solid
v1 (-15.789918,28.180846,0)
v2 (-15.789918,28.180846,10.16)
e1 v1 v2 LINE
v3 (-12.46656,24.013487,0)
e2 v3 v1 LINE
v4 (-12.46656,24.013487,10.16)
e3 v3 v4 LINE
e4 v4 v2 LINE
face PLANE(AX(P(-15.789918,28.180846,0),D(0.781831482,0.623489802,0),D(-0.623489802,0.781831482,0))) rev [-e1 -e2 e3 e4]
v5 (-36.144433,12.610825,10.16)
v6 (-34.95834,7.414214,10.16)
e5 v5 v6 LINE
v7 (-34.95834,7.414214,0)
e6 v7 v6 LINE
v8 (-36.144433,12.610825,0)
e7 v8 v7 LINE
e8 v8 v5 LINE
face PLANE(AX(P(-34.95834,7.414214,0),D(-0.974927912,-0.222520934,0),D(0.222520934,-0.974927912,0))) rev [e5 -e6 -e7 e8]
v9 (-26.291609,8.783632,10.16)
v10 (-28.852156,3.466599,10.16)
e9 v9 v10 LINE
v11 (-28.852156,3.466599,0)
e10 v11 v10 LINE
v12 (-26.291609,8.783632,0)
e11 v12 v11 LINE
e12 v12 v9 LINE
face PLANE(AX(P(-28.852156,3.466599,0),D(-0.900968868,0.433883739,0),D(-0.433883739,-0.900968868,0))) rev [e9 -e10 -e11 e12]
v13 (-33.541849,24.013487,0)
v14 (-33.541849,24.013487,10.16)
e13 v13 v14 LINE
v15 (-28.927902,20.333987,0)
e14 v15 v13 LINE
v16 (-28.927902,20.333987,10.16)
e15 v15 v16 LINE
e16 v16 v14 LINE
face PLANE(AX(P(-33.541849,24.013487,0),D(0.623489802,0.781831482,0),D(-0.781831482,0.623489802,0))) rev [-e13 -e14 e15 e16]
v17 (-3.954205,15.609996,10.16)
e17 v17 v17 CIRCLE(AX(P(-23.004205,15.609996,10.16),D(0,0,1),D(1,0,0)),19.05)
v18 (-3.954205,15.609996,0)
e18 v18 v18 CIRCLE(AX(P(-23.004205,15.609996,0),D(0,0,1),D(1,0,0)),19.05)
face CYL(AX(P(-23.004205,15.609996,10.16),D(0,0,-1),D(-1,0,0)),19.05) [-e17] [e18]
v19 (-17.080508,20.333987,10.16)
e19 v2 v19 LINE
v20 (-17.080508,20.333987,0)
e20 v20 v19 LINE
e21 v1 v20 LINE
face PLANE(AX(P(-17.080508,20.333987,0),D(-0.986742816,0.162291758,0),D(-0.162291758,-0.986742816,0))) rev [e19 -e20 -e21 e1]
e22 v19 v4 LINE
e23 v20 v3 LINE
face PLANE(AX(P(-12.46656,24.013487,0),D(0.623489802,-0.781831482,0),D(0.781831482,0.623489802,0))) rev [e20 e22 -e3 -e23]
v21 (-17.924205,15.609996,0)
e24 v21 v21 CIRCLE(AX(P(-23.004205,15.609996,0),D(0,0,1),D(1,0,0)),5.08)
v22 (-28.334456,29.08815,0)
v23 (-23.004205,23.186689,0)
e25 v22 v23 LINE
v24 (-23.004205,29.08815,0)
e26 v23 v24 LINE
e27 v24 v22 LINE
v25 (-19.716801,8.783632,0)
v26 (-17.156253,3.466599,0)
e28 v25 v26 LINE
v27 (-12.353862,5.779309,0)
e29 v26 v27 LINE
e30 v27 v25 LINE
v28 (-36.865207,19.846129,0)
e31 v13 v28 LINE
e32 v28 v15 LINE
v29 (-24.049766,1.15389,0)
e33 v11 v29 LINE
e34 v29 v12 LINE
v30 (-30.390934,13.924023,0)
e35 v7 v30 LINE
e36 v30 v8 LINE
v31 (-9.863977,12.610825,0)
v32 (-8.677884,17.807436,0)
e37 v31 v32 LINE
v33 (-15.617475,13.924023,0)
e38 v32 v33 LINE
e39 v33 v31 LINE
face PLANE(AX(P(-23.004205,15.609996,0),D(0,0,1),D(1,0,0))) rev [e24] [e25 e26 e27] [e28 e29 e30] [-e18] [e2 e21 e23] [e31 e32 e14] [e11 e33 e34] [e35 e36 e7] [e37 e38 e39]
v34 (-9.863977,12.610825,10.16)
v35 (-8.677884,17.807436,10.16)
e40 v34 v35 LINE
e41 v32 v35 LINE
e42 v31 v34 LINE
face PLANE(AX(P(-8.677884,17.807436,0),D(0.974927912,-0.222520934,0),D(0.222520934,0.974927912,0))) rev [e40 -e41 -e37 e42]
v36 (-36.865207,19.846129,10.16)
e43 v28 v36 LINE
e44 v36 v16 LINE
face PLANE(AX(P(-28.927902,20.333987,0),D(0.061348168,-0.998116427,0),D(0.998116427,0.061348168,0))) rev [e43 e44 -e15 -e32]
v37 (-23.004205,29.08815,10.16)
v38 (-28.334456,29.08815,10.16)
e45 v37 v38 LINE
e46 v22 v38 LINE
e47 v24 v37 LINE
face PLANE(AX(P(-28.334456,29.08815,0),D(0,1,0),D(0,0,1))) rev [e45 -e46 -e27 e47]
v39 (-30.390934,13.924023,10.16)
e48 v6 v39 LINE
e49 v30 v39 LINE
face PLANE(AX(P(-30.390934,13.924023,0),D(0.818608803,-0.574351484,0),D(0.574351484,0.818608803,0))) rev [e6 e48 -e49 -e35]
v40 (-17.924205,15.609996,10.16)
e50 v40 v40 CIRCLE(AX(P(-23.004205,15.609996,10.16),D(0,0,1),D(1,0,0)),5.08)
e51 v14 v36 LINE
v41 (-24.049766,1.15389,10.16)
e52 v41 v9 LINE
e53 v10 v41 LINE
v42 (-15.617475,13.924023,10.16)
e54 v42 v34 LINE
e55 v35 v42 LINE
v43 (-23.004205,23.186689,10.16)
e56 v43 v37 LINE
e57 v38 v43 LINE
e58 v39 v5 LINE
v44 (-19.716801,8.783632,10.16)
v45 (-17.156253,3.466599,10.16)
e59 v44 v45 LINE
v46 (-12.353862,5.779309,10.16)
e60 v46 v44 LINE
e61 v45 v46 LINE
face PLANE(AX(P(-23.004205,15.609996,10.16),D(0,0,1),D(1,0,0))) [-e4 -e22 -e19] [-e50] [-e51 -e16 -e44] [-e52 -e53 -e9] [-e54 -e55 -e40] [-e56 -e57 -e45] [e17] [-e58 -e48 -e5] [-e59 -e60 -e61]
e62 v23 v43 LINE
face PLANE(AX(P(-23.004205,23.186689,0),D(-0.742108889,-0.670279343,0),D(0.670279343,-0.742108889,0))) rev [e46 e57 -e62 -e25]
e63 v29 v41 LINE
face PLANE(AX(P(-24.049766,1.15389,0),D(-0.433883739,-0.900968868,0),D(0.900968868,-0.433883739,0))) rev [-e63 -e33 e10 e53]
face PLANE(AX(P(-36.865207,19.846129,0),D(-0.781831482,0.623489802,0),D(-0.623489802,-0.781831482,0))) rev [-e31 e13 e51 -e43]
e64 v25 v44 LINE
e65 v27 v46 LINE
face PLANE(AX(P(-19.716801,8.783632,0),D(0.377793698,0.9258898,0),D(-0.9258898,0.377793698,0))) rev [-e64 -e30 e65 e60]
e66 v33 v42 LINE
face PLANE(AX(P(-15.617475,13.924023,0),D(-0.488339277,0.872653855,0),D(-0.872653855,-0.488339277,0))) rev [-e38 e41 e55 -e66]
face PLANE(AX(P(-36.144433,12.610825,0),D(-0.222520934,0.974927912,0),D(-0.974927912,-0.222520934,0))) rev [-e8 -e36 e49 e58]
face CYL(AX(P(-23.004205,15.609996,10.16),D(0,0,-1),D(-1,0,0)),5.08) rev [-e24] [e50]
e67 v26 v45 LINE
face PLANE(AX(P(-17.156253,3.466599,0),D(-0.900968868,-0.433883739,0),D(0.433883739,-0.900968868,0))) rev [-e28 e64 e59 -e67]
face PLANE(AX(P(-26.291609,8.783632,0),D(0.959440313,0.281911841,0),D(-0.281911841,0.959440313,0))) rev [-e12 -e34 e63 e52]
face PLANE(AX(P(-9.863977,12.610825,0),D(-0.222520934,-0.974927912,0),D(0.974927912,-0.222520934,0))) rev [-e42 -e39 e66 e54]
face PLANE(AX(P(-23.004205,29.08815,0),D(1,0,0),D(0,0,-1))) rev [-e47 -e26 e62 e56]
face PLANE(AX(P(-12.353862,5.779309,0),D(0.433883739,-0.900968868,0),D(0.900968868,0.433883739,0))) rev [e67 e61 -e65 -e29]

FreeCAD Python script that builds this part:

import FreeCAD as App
import Part
import Sketcher

V = App.Vector
Q = App.Units.Quantity


def add_polygon(sketch, points):
    """Adds a closed chain of lines whose ends are joined by coincident constraints."""
    first, n = sketch.GeometryCount, len(points)
    for a, b in zip(points, points[1:] + points[:1]):
        sketch.addGeometry(Part.LineSegment(App.Vector(*a, 0), App.Vector(*b, 0)), False)
    for i in range(n):
        sketch.addConstraint(Sketcher.Constraint("Coincident", first + i, 2, first + (i + 1) % n, 1))

doc = App.newDocument("Part")
params = doc.addObject("Spreadsheet::Sheet", "Params")
for row, (alias, value) in enumerate([
    ("sketch1_diameter", "1.5 in"),
    ("sketch1_diameter2", "0.4 in"),
    ("pad1_length", "0.4 in"),
    ("pocket1_length", "0.4 in"),
], start=1):
    params.set(f"A{row}", alias)
    params.set(f"B{row}", "=" + value)
    params.setAlias(f"B{row}", alias)

body = doc.addObject("PartDesign::Body", "Body")

# Sketch on XY plane
sketch1 = body.newObject("Sketcher::SketchObject", "Sketch")
sketch1.AttachmentSupport = (doc.getObject("XY_Plane"), [""])
sketch1.MapMode = "FlatFace"
sketch1.addGeometry(Part.Circle(V(-23, 16, 0), V(0, 0, 1), 19), False)
sketch1.addGeometry(Part.Circle(V(-23, 16, 0), V(0, 0, 1), 5), False)
sketch1.addConstraint(Sketcher.Constraint("Coincident", 1, 3, 0, 3))
sketch1.addConstraint(Sketcher.Constraint("Diameter", 0, Q("1.5 in")))
sketch1.addConstraint(Sketcher.Constraint("Diameter", 1, Q("0.4 in")))
sketch1.addConstraint(Sketcher.Constraint("DistanceX", 0, 3, -1, 1, 23.004205))
sketch1.addConstraint(Sketcher.Constraint("DistanceY", -1, 1, 0, 3, 15.609996))
sketch1.setExpression("Constraints[1]", "Params.sketch1_diameter")
sketch1.setExpression("Constraints[2]", "Params.sketch1_diameter2")
pad1 = body.newObject("PartDesign::Pad", "Pad")
pad1.Profile = sketch1
pad1.setExpression("Length", "Params.pad1_length")

# Sketch on XY plane
sketch2 = body.newObject("Sketcher::SketchObject", "Sketch001")
sketch2.AttachmentSupport = (doc.getObject("XY_Plane"), [""])
sketch2.MapMode = "FlatFace"
sketch2.AttachmentOffset = App.Placement(V(0, 0, 0.4 * 25.4), App.Rotation())
add_polygon(sketch2, [(-28, 29), (-23, 23), (-23, 29)])  # lines 0-2
add_polygon(sketch2, [(-17, 20), (-12, 24), (-16, 28)])  # lines 3-5
add_polygon(sketch2, [(-16, 14), (-10, 13), (-9, 18)])  # lines 6-8
add_polygon(sketch2, [(-20, 9), (-17, 3), (-12, 6)])  # lines 9-11
add_polygon(sketch2, [(-26, 9), (-29, 3), (-24, 1)])  # lines 12-14
add_polygon(sketch2, [(-30, 14), (-36, 13), (-35, 7)])  # lines 15-17
add_polygon(sketch2, [(-29, 20), (-34, 24), (-37, 20)])  # lines 18-20
sketch2.addConstraint(Sketcher.Constraint("Vertical", 1))
sketch2.addConstraint(Sketcher.Constraint("Horizontal", 2))
sketch2.addConstraint(Sketcher.Constraint("Perpendicular", 3, 4))
sketch2.addConstraint(Sketcher.Constraint("Perpendicular", 6, 7))
sketch2.addConstraint(Sketcher.Constraint("Perpendicular", 9, 10))
sketch2.addConstraint(Sketcher.Constraint("Perpendicular", 12, 13))
sketch2.addConstraint(Sketcher.Constraint("Perpendicular", 15, 16))
sketch2.addConstraint(Sketcher.Constraint("Perpendicular", 18, 19))
sketch2.addConstraint(Sketcher.Constraint("Horizontal", 9, 2, 12, 2))
sketch2.addConstraint(Sketcher.Constraint("Horizontal", 11, 2, 14, 2))
sketch2.addConstraint(Sketcher.Constraint("Horizontal", 6, 2, 15, 2))
sketch2.addConstraint(Sketcher.Constraint("Horizontal", 8, 2, 17, 2))
sketch2.addConstraint(Sketcher.Constraint("Horizontal", 3, 2, 18, 2))
sketch2.addConstraint(Sketcher.Constraint("Horizontal", 5, 2, 20, 2))
sketch2.addConstraint(Sketcher.Constraint("Equal", 0, 5))
sketch2.addConstraint(Sketcher.Constraint("Equal", 3, 6))
sketch2.addConstraint(Sketcher.Constraint("Equal", 4, 7))
sketch2.addConstraint(Sketcher.Constraint("Equal", 6, 9))
sketch2.addConstraint(Sketcher.Constraint("Equal", 7, 10))
sketch2.addConstraint(Sketcher.Constraint("Equal", 9, 12))
sketch2.addConstraint(Sketcher.Constraint("Equal", 10, 13))
sketch2.addConstraint(Sketcher.Constraint("Equal", 12, 15))
sketch2.addConstraint(Sketcher.Constraint("Equal", 13, 16))
sketch2.addConstraint(Sketcher.Constraint("Equal", 15, 18))
sketch2.addConstraint(Sketcher.Constraint("Equal", 16, 19))
sketch2.addConstraint(Sketcher.Constraint("DistanceY", 9, 2, 7, 2, Q("0.5645999 in")))
sketch2.addConstraint(Sketcher.Constraint("DistanceX", 2, 2, 2, 1, 5.330252))
sketch2.addConstraint(Sketcher.Constraint("DistanceY", 1, 1, 1, 2, 5.90146))
sketch2.addConstraint(Sketcher.Constraint("DistanceY", -1, 1, 9, 2, 3.466599))
sketch2.addConstraint(Sketcher.Constraint("DistanceX", 11, 2, -1, 1, 19.716801))
sketch2.addConstraint(Sketcher.Constraint("DistanceX", 20, 2, -1, 1, 28.927902))
sketch2.addConstraint(Sketcher.Constraint("DistanceY", 0, 2, 3, 2, 0.826798))
sketch2.addConstraint(Sketcher.Constraint("DistanceY", 5, 2, 3, 2, 3.6795))
sketch2.addConstraint(Sketcher.Constraint("DistanceX", 8, 2, 6, 2, 5.753499))
sketch2.addConstraint(Sketcher.Constraint("DistanceY", 6, 2, 8, 2, 1.313198))
sketch2.addConstraint(Sketcher.Constraint("DistanceY", -1, 1, 0, 2, 23.186689))
sketch2.addConstraint(Sketcher.Constraint("DistanceX", 3, 2, -1, 1, 12.46656))
sketch2.addConstraint(Sketcher.Constraint("DistanceY", -1, 1, 10, 2, 5.779309))
sketch2.addConstraint(Sketcher.Constraint("DistanceX", 14, 2, -1, 1, 26.291609))
sketch2.addConstraint(Sketcher.Constraint("DistanceX", 16, 2, -1, 1, 34.95834))
sketch2.addConstraint(Sketcher.Constraint("DistanceX", 2, 2, 4, 2, 12.544539))
sketch2.addConstraint(Sketcher.Constraint("DistanceX", 5, 2, 6, 2, 7.216531))
pocket1 = body.newObject("PartDesign::Pocket", "Pocket")
pocket1.Profile = sketch2
pocket1.setExpression("Length", "Params.pocket1_length")

doc.recompute()
